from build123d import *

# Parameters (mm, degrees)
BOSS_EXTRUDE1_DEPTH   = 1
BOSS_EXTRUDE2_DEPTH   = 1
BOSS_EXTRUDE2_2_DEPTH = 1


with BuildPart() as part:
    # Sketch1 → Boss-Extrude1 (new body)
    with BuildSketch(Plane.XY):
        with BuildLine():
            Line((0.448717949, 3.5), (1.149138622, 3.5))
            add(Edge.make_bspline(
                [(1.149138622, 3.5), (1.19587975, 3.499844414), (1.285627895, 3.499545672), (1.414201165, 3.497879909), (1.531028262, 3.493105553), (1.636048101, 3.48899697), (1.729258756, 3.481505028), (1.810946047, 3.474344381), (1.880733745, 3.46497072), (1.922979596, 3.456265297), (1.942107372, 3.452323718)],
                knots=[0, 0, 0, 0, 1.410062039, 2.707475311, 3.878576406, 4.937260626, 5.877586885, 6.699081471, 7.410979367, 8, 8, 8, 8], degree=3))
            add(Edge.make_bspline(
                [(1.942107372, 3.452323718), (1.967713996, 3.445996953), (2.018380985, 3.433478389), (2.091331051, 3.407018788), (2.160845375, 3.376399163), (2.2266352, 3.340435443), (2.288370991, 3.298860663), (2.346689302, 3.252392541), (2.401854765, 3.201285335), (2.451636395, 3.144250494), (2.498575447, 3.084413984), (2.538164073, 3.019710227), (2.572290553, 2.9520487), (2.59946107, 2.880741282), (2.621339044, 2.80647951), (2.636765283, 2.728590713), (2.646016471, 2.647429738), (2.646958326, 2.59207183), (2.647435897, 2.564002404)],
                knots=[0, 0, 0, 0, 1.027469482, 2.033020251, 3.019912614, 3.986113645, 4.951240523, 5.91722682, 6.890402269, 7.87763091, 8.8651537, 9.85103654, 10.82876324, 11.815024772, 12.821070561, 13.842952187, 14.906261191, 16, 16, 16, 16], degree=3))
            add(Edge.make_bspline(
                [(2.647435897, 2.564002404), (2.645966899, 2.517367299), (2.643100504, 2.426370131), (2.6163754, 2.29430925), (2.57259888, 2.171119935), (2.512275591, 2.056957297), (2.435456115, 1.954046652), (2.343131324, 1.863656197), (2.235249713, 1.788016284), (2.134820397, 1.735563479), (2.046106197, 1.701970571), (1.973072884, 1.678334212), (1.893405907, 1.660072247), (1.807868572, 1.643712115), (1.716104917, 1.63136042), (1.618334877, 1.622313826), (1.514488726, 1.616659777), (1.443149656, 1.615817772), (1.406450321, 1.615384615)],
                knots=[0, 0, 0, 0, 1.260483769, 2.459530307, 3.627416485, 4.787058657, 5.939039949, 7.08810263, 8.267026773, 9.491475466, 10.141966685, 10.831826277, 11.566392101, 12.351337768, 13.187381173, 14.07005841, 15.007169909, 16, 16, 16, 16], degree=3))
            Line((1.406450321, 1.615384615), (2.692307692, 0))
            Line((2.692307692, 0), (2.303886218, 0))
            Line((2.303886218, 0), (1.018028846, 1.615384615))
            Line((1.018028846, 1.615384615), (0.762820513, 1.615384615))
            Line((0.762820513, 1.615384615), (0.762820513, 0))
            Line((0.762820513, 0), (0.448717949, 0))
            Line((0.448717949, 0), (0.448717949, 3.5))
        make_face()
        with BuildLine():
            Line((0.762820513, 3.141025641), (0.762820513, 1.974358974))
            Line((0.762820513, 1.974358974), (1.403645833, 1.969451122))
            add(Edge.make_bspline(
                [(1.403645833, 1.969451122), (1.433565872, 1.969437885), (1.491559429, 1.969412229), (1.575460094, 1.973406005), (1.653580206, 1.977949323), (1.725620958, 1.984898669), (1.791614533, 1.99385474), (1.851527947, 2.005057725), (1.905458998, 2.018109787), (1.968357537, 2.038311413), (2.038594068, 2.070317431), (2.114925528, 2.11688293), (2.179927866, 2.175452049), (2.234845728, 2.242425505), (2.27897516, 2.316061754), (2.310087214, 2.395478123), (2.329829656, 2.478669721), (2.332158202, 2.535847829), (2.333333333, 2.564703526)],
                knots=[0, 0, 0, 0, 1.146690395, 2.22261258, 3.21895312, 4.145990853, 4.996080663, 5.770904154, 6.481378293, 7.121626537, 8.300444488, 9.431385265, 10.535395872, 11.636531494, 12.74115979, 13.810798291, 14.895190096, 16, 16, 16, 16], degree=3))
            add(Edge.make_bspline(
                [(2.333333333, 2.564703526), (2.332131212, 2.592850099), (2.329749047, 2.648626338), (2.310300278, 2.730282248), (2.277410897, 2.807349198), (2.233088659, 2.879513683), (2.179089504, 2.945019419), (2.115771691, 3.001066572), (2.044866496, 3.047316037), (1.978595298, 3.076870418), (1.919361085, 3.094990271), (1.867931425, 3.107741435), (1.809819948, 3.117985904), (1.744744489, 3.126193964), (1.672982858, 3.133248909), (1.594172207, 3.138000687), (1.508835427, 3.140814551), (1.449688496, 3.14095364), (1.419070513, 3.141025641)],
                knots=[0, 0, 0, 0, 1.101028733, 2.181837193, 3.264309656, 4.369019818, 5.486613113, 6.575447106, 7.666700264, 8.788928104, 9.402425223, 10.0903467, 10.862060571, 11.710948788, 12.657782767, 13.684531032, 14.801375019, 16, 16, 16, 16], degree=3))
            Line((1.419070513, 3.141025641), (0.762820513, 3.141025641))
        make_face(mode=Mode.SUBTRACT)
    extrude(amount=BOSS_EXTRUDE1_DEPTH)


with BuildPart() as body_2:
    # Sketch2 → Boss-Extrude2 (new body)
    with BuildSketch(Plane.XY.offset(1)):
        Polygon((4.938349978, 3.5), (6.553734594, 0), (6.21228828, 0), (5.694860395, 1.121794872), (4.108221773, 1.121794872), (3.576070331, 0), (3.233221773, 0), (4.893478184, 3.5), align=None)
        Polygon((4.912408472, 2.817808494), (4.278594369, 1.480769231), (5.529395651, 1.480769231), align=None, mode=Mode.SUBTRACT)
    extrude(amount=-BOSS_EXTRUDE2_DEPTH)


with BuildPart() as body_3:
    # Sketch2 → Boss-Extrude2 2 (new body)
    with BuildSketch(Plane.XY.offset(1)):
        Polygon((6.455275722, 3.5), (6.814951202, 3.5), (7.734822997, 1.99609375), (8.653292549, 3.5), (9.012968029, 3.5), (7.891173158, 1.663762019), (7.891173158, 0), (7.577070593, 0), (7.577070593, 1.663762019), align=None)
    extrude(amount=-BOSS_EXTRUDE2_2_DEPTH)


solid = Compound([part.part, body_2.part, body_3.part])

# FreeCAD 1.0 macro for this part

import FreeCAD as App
import Part
import Sketcher

V = App.Vector


def add_polygon(sketch, points):
    """Adds a closed chain of lines whose ends are joined by coincident constraints."""
    first, n = sketch.GeometryCount, len(points)
    for a, b in zip(points, points[1:] + points[:1]):
        sketch.addGeometry(Part.LineSegment(App.Vector(*a, 0), App.Vector(*b, 0)), False)
    for i in range(n):
        sketch.addConstraint(Sketcher.Constraint("Coincident", first + i, 2, first + (i + 1) % n, 1))

doc = App.newDocument("Part")
body = doc.addObject("PartDesign::Body", "Body")

sketch1 = body.newObject("Sketcher::SketchObject", "Sketch")
sketch1.AttachmentSupport = (doc.getObject("XY_Plane"), [""])
sketch1.MapMode = "FlatFace"
sketch1.addGeometry(Part.LineSegment(V(1.149139, 3.5, 0), V(0.448718, 3.5, 0)), False)
sketch1.addGeometry(Part.LineSegment(V(0.448718, 3.5, 0), V(0.448718, 0, 0)), False)
sketch1.addGeometry(Part.LineSegment(V(0.448718, 0, 0), V(0.762821, 0, 0)), False)
sketch1.addGeometry(Part.LineSegment(V(0.762821, 0, 0), V(0.762821, 1.615385, 0)), False)
sketch1.addGeometry(Part.LineSegment(V(0.762821, 1.615385, 0), V(1.018029, 1.615385, 0)), False)
sketch1.addGeometry(Part.LineSegment(V(1.018029, 1.615385, 0), V(2.303886, 0, 0)), False)
sketch1.addGeometry(Part.LineSegment(V(2.303886, 0, 0), V(2.692308, 0, 0)), False)
sketch1.addGeometry(Part.LineSegment(V(2.692308, 0, 0), V(1.40645, 1.615385, 0)), False)
sketch1.addGeometry(Part.BSplineCurve([V(2.647436, 2.564002, 0), V(2.645967, 2.517367, 0), V(2.643101, 2.42637, 0), V(2.616375, 2.294309, 0), V(2.572599, 2.17112, 0), V(2.512276, 2.056957, 0), V(2.435456, 1.954047, 0), V(2.343131, 1.863656, 0), V(2.23525, 1.788016, 0), V(2.13482, 1.735563, 0), V(2.046106, 1.701971, 0), V(1.973073, 1.678334, 0), V(1.893406, 1.660072, 0), V(1.807869, 1.643712, 0), V(1.716105, 1.63136, 0), V(1.618335, 1.622314, 0), V(1.514489, 1.61666, 0), V(1.44315, 1.615818, 0), V(1.40645, 1.615385, 0)], [4, 1, 1, 1, 1, 1, 1, 1, 1, 1, 1, 1, 1, 1, 1, 1, 4], [0, 1.260483769, 2.459530307, 3.627416485, 4.787058657, 5.939039949, 7.08810263, 8.267026773, 9.491475466, 10.141966685, 10.831826277, 11.566392101, 12.351337768, 13.187381173, 14.07005841, 15.007169909, 16], False, 3, [1, 1, 1, 1, 1, 1, 1, 1, 1, 1, 1, 1, 1, 1, 1, 1, 1, 1, 1], False), False)
sketch1.addGeometry(Part.BSplineCurve([V(1.942107, 3.452324, 0), V(1.967714, 3.445997, 0), V(2.018381, 3.433478, 0), V(2.091331, 3.407019, 0), V(2.160845, 3.376399, 0), V(2.226635, 3.340435, 0), V(2.288371, 3.298861, 0), V(2.346689, 3.252393, 0), V(2.401855, 3.201285, 0), V(2.451636, 3.14425, 0), V(2.498575, 3.084414, 0), V(2.538164, 3.01971, 0), V(2.572291, 2.952049, 0), V(2.599461, 2.880741, 0), V(2.621339, 2.80648, 0), V(2.636765, 2.728591, 0), V(2.646016, 2.64743, 0), V(2.646958, 2.592072, 0), V(2.647436, 2.564002, 0)], [4, 1, 1, 1, 1, 1, 1, 1, 1, 1, 1, 1, 1, 1, 1, 1, 4], [0, 1.027469482, 2.033020251, 3.019912614, 3.986113645, 4.951240523, 5.91722682, 6.890402269, 7.87763091, 8.8651537, 9.85103654, 10.82876324, 11.815024772, 12.821070561, 13.842952187, 14.906261191, 16], False, 3, [1, 1, 1, 1, 1, 1, 1, 1, 1, 1, 1, 1, 1, 1, 1, 1, 1, 1, 1], False), False)
sketch1.addGeometry(Part.BSplineCurve([V(1.149139, 3.5, 0), V(1.19588, 3.499844, 0), V(1.285628, 3.499546, 0), V(1.414201, 3.49788, 0), V(1.531028, 3.493106, 0), V(1.636048, 3.488997, 0), V(1.729259, 3.481505, 0), V(1.810946, 3.474344, 0), V(1.880734, 3.464971, 0), V(1.92298, 3.456265, 0), V(1.942107, 3.452324, 0)], [4, 1, 1, 1, 1, 1, 1, 1, 4], [0, 1.410062039, 2.707475311, 3.878576406, 4.937260626, 5.877586885, 6.699081471, 7.410979367, 8], False, 3, [1, 1, 1, 1, 1, 1, 1, 1, 1, 1, 1], False), False)
sketch1.addGeometry(Part.LineSegment(V(0.762821, 3.141026, 0), V(1.419071, 3.141026, 0)), False)
sketch1.addGeometry(Part.BSplineCurve([V(2.333333, 2.564704, 0), V(2.332131, 2.59285, 0), V(2.329749, 2.648626, 0), V(2.3103, 2.730282, 0), V(2.277411, 2.807349, 0), V(2.233089, 2.879514, 0), V(2.17909, 2.945019, 0), V(2.115772, 3.001067, 0), V(2.044866, 3.047316, 0), V(1.978595, 3.07687, 0), V(1.919361, 3.09499, 0), V(1.867931, 3.107741, 0), V(1.80982, 3.117986, 0), V(1.744744, 3.126194, 0), V(1.672983, 3.133249, 0), V(1.594172, 3.138001, 0), V(1.508835, 3.140815, 0), V(1.449688, 3.140954, 0), V(1.419071, 3.141026, 0)], [4, 1, 1, 1, 1, 1, 1, 1, 1, 1, 1, 1, 1, 1, 1, 1, 4], [0, 1.101028733, 2.181837193, 3.264309656, 4.369019818, 5.486613113, 6.575447106, 7.666700264, 8.788928104, 9.402425223, 10.0903467, 10.862060571, 11.710948788, 12.657782767, 13.684531032, 14.801375019, 16], False, 3, [1, 1, 1, 1, 1, 1, 1, 1, 1, 1, 1, 1, 1, 1, 1, 1, 1, 1, 1], False), False)
sketch1.addGeometry(Part.BSplineCurve([V(1.403646, 1.969451, 0), V(1.433566, 1.969438, 0), V(1.491559, 1.969412, 0), V(1.57546, 1.973406, 0), V(1.65358, 1.977949, 0), V(1.725621, 1.984899, 0), V(1.791615, 1.993855, 0), V(1.851528, 2.005058, 0), V(1.905459, 2.01811, 0), V(1.968358, 2.038311, 0), V(2.038594, 2.070317, 0), V(2.114926, 2.116883, 0), V(2.179928, 2.175452, 0), V(2.234846, 2.242426, 0), V(2.278975, 2.316062, 0), V(2.310087, 2.395478, 0), V(2.32983, 2.47867, 0), V(2.332158, 2.535848, 0), V(2.333333, 2.564704, 0)], [4, 1, 1, 1, 1, 1, 1, 1, 1, 1, 1, 1, 1, 1, 1, 1, 4], [0, 1.146690395, 2.22261258, 3.21895312, 4.145990853, 4.996080663, 5.770904154, 6.481378293, 7.121626537, 8.300444488, 9.431385265, 10.535395872, 11.636531494, 12.74115979, 13.810798291, 14.895190096, 16], False, 3, [1, 1, 1, 1, 1, 1, 1, 1, 1, 1, 1, 1, 1, 1, 1, 1, 1, 1, 1], False), False)
sketch1.addGeometry(Part.LineSegment(V(1.403646, 1.969451, 0), V(0.762821, 1.974359, 0)), False)
sketch1.addGeometry(Part.LineSegment(V(0.762821, 1.974359, 0), V(0.762821, 3.141026, 0)), False)
sketch1.addConstraint(Sketcher.Constraint("Block", 8))
sketch1.addConstraint(Sketcher.Constraint("Block", 9))
sketch1.addConstraint(Sketcher.Constraint("Block", 10))
sketch1.addConstraint(Sketcher.Constraint("Block", 12))
sketch1.addConstraint(Sketcher.Constraint("Block", 13))
sketch1.addConstraint(Sketcher.Constraint("Coincident", 0, 2, 1, 1))
sketch1.addConstraint(Sketcher.Constraint("Coincident", 1, 2, 2, 1))
sketch1.addConstraint(Sketcher.Constraint("Coincident", 2, 2, 3, 1))
sketch1.addConstraint(Sketcher.Constraint("Coincident", 3, 2, 4, 1))
sketch1.addConstraint(Sketcher.Constraint("Coincident", 4, 2, 5, 1))
sketch1.addConstraint(Sketcher.Constraint("Coincident", 5, 2, 6, 1))
sketch1.addConstraint(Sketcher.Constraint("Coincident", 6, 2, 7, 1))
sketch1.addConstraint(Sketcher.Constraint("Coincident", 7, 2, 8, 2))
sketch1.addConstraint(Sketcher.Constraint("Coincident", 10, 1, 0, 1))
sketch1.addConstraint(Sketcher.Constraint("Coincident", 11, 2, 12, 2))
sketch1.addConstraint(Sketcher.Constraint("Coincident", 13, 1, 14, 1))
sketch1.addConstraint(Sketcher.Constraint("Coincident", 14, 2, 15, 1))
sketch1.addConstraint(Sketcher.Constraint("Coincident", 15, 2, 11, 1))
sketch1.addConstraint(Sketcher.Constraint("Horizontal", 0))
sketch1.addConstraint(Sketcher.Constraint("Vertical", 1))
sketch1.addConstraint(Sketcher.Constraint("Horizontal", 2))
sketch1.addConstraint(Sketcher.Constraint("Vertical", 3))
sketch1.addConstraint(Sketcher.Constraint("Horizontal", 4))
sketch1.addConstraint(Sketcher.Constraint("Horizontal", 6))
sketch1.addConstraint(Sketcher.Constraint("Horizontal", 11))
sketch1.addConstraint(Sketcher.Constraint("Vertical", 15))
sketch1.addConstraint(Sketcher.Constraint("PointOnObject", 1, 2, -1))
sketch1.addConstraint(Sketcher.Constraint("PointOnObject", 5, 2, -1))
sketch1.addConstraint(Sketcher.Constraint("Parallel", 5, 7))
sketch1.addConstraint(Sketcher.Constraint("Horizontal", 4, 2, 7, 2))
sketch1.addConstraint(Sketcher.Constraint("Vertical", 3, 2, 14, 2))
sketch1.addConstraint(Sketcher.Constraint("DistanceX", 0, 2, 0, 1, 0.700421))
sketch1.addConstraint(Sketcher.Constraint("DistanceX", 4, 1, 4, 2, 0.255208))
sketch1.addConstraint(Sketcher.Constraint("DistanceX", 6, 1, 6, 2, 0.388421))
sketch1.addConstraint(Sketcher.Constraint("Distance", 5, 2.064678))
sketch1.addConstraint(Sketcher.Constraint("DistanceY", 15, 1, 15, 2, 1.166667))
pad1 = body.newObject("PartDesign::Pad", "Pad")
pad1.Profile = sketch1
pad1.Length = 1
body2 = doc.addObject("PartDesign::Body", "Body001")

sketch2 = body2.newObject("Sketcher::SketchObject", "Sketch001")
sketch2.AttachmentSupport = (doc.getObject("XY_Plane001"), [""])
sketch2.MapMode = "FlatFace"
sketch2.AttachmentOffset = App.Placement(V(0, 0, 1), App.Rotation())
add_polygon(sketch2, [(6.554, 0), (4.938, 3.5), (4.893, 3.5), (3.233, 0), (3.576, 0), (4.108, 1.122), (5.695, 1.122), (6.212, 0)])
add_polygon(sketch2, [(4.912, 2.818), (5.529, 1.481), (4.279, 1.481)])
sketch2.addConstraint(Sketcher.Constraint("Horizontal", 1))
sketch2.addConstraint(Sketcher.Constraint("Horizontal", 3))
sketch2.addConstraint(Sketcher.Constraint("Horizontal", 5))
sketch2.addConstraint(Sketcher.Constraint("Horizontal", 7))
sketch2.addConstraint(Sketcher.Constraint("Horizontal", 9))
sketch2.addConstraint(Sketcher.Constraint("PointOnObject", 2, 2, -1))
sketch2.addConstraint(Sketcher.Constraint("PointOnObject", 6, 2, -1))
sketch2.addConstraint(Sketcher.Constraint("DistanceY", -1, 1, 0, 2, 3.5))
sketch2.addConstraint(Sketcher.Constraint("DistanceX", 9, 2, 9, 1, 1.250801))
sketch2.addConstraint(Sketcher.Constraint("DistanceX", 2, 2, 4, 2, 0.875))
sketch2.addConstraint(Sketcher.Constraint("DistanceX", 1, 2, 1, 1, 0.044872))
sketch2.addConstraint(Sketcher.Constraint("DistanceX", 3, 1, 3, 2, 0.342849))
sketch2.addConstraint(Sketcher.Constraint("DistanceX", 5, 1, 5, 2, 1.586639))
sketch2.addConstraint(Sketcher.Constraint("Distance", 8, 1.472531))
sketch2.addConstraint(Sketcher.Constraint("Distance", 10, 1.47966))
sketch2.addConstraint(Sketcher.Constraint("DistanceX", 7, 1, 7, 2, 0.341446))
sketch2.addConstraint(Sketcher.Constraint("DistanceX", -1, 1, 0, 2, 4.93835))
sketch2.addConstraint(Sketcher.Constraint("DistanceX", -1, 1, 2, 2, 3.233222))
sketch2.addConstraint(Sketcher.Constraint("DistanceX", -1, 1, 6, 2, 6.212288))
sketch2.addConstraint(Sketcher.Constraint("DistanceY", -1, 1, 8, 2, 1.480769))
sketch2.addConstraint(Sketcher.Constraint("DistanceX", -1, 1, 10, 2, 4.912408))
sketch2.addConstraint(Sketcher.Constraint("Distance", 4, 1.241615))
pad2 = body2.newObject("PartDesign::Pad", "Pad001")
pad2.Profile = sketch2
pad2.Length = 1
pad2.Reversed = True
body3 = doc.addObject("PartDesign::Body", "Body002")

sketch3 = body3.newObject("Sketcher::SketchObject", "Sketch002")
sketch3.AttachmentSupport = (doc.getObject("XY_Plane002"), [""])
sketch3.MapMode = "FlatFace"
sketch3.AttachmentOffset = App.Placement(V(0, 0, 1), App.Rotation())
add_polygon(sketch3, [(6.81, 3.5), (6.46, 3.5), (7.58, 1.66), (7.58, 0), (7.89, 0), (7.89, 1.66), (9.01, 3.5), (8.65, 3.5), (7.73, 2)])
sketch3.addConstraint(Sketcher.Constraint("Horizontal", 0))
sketch3.addConstraint(Sketcher.Constraint("Vertical", 2))
sketch3.addConstraint(Sketcher.Constraint("Horizontal", 3))
sketch3.addConstraint(Sketcher.Constraint("Vertical", 4))
sketch3.addConstraint(Sketcher.Constraint("Horizontal", 6))
sketch3.addConstraint(Sketcher.Constraint("PointOnObject", 2, 2, -1))
sketch3.addConstraint(Sketcher.Constraint("Horizontal", 1, 2, 4, 2))
sketch3.addConstraint(Sketcher.Constraint("Horizontal", 0, 2, 5, 2))
sketch3.addConstraint(Sketcher.Constraint("Equal", 0, 6))
sketch3.addConstraint(Sketcher.Constraint("Equal", 1, 5))
sketch3.addConstraint(Sketcher.Constraint("DistanceY", -1, 1, 0, 2, 3.5))
sketch3.addConstraint(Sketcher.Constraint("Distance", 1, 2.151788))
sketch3.addConstraint(Sketcher.Constraint("Distance", 7, 1.762192))
sketch3.addConstraint(Sketcher.Constraint("DistanceX", 0, 2, 0, 1, 0.359675))
sketch3.addConstraint(Sketcher.Constraint("DistanceX", 3, 1, 3, 2, 0.314103))
sketch3.addConstraint(Sketcher.Constraint("DistanceY", 2, 2, 2, 1, 1.663762))
sketch3.addConstraint(Sketcher.Constraint("DistanceX", -1, 1, 1, 2, 7.577071))
sketch3.addConstraint(Sketcher.Constraint("DistanceX", 7, 2, 4, 2, 0.15635))
pad3 = body3.newObject("PartDesign::Pad", "Pad002")
pad3.Profile = sketch3
pad3.Length = 1
pad3.Reversed = True

doc.recompute()
